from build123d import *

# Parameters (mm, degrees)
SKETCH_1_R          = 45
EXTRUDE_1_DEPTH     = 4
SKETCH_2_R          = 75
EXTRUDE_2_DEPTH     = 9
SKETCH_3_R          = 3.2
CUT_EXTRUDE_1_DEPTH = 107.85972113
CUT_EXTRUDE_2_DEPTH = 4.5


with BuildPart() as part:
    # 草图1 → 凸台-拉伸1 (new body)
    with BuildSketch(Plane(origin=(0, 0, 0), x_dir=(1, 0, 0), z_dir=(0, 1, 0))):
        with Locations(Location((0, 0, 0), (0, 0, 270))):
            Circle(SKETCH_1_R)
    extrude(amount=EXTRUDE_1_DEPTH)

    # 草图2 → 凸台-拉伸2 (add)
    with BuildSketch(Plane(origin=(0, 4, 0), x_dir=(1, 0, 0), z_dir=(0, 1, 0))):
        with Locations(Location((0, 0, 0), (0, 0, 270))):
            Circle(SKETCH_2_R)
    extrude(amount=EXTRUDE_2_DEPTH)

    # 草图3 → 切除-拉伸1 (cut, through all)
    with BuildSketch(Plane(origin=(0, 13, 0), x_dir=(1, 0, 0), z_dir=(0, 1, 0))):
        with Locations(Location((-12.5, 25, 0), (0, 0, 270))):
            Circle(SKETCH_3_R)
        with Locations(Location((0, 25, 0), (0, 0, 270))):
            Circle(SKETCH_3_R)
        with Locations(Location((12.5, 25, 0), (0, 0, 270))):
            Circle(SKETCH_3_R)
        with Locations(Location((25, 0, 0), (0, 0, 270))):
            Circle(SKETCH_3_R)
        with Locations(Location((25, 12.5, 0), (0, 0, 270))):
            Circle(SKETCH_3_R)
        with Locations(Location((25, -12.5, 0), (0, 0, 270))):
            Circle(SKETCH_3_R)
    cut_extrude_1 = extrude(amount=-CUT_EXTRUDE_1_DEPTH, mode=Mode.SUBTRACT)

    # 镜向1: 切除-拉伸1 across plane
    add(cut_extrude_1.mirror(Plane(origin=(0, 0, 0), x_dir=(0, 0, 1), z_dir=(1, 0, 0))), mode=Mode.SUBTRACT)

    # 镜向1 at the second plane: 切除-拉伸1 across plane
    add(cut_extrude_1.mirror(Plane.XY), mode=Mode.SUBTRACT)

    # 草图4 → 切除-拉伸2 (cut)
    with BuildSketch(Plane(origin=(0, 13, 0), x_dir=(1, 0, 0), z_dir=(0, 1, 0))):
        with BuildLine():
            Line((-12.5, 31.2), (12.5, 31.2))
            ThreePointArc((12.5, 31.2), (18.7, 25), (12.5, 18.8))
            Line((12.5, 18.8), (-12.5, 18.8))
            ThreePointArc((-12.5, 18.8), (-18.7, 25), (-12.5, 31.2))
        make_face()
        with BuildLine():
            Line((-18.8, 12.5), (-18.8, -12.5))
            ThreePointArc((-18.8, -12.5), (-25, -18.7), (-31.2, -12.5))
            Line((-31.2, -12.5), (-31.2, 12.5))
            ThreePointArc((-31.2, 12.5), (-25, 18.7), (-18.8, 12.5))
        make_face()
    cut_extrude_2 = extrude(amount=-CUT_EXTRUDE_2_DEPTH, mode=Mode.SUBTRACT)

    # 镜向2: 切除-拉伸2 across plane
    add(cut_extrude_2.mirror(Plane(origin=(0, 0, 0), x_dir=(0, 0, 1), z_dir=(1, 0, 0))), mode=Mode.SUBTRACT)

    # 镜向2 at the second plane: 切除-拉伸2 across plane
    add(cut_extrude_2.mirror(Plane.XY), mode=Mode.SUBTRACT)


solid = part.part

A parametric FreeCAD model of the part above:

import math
import FreeCAD as App
import Part
import Sketcher

V = App.Vector
Q = App.Units.Quantity

doc = App.newDocument("Part")
params = doc.addObject("Spreadsheet::Sheet", "Params")
for row, (alias, value) in enumerate([
    ("sketch1_diameter", "90 mm"),
    ("pad1_length", "4 mm"),
    ("sketch2_diameter", "150 mm"),
    ("pad2_length", "9 mm"),
    ("sketch3_diameter", "6.4 mm"),
    ("sketch4_radius", "6.2 mm"),
    ("sketch4_width", "25 mm"),
    ("pocket2_length", "4.5 mm"),
], start=1):
    params.set(f"A{row}", alias)
    params.set(f"B{row}", "=" + value)
    params.setAlias(f"B{row}", alias)

body = doc.addObject("PartDesign::Body", "Body")

sketch1 = body.newObject("Sketcher::SketchObject", "Sketch")
sketch1.AttachmentSupport = (doc.getObject("XZ_Plane"), [""])
sketch1.MapMode = "FlatFace"
sketch1.addGeometry(Part.Circle(V(0, 0, 0), V(0, 0, 1), 45), False)
sketch1.addConstraint([
    Sketcher.Constraint("Coincident", 0, 3, -1, 1),
    Sketcher.Constraint("Diameter", 0, Q("90 mm")),
])
sketch1.setExpression("Constraints[1]", "Params.sketch1_diameter")
pad1 = body.newObject("PartDesign::Pad", "Pad")
pad1.Profile = sketch1
pad1.setExpression("Length", "Params.pad1_length")
pad1.Reversed = True

sketch2 = body.newObject("Sketcher::SketchObject", "Sketch001")
sketch2.AttachmentSupport = (doc.getObject("XZ_Plane"), [""])
sketch2.MapMode = "FlatFace"
sketch2.AttachmentOffset = App.Placement(V(0, 0, -4), App.Rotation())
sketch2.addGeometry(Part.Circle(V(0, 0, 0), V(0, 0, 1), 75), False)
sketch2.addConstraint([
    Sketcher.Constraint("Coincident", 0, 3, -1, 1),
    Sketcher.Constraint("Diameter", 0, Q("150 mm")),
])
sketch2.setExpression("Constraints[1]", "Params.sketch2_diameter")
pad2 = body.newObject("PartDesign::Pad", "Pad001")
pad2.Profile = sketch2
pad2.setExpression("Length", "Params.pad2_length")
pad2.Reversed = True

sketch3 = body.newObject("Sketcher::SketchObject", "Sketch002")
sketch3.AttachmentSupport = (doc.getObject("XZ_Plane"), [""])
sketch3.MapMode = "FlatFace"
sketch3.AttachmentOffset = App.Placement(V(0, 0, -13), App.Rotation())
sketch3.addGeometry([
    Part.Circle(V(-12.5, -25, 0), V(0, 0, 1), 3.2),
    Part.Circle(V(0, -25, 0), V(0, 0, 1), 3.2),
    Part.Circle(V(12.5, -25, 0), V(0, 0, 1), 3.2),
    Part.Circle(V(25, 0, 0), V(0, 0, 1), 3.2),
    Part.Circle(V(25, -12.5, 0), V(0, 0, 1), 3.2),
    Part.Circle(V(25, 12.5, 0), V(0, 0, 1), 3.2),
], False)
sketch3.addConstraint([
    Sketcher.Constraint("Equal", 0, 1),
    Sketcher.Constraint("Equal", 1, 2),
    Sketcher.Constraint("Equal", 2, 3),
    Sketcher.Constraint("Equal", 3, 4),
    Sketcher.Constraint("Equal", 4, 5),
    Sketcher.Constraint("Symmetric", 0, 3, 2, 3, -2),
    Sketcher.Constraint("Symmetric", 4, 3, 5, 3, -1),
    Sketcher.Constraint("PointOnObject", 1, 3, -2),
    Sketcher.Constraint("PointOnObject", 3, 3, -1),
    Sketcher.Constraint("Horizontal", 0, 3, 1, 3),
    Sketcher.Constraint("Vertical", 3, 3, 4, 3),
    Sketcher.Constraint("Diameter", 0, Q("6.4 mm")),
    Sketcher.Constraint("DistanceY", 0, 3, -1, 1, Q("25 mm")),
    Sketcher.Constraint("DistanceX", -1, 1, 3, 3, Q("25 mm")),
    Sketcher.Constraint("DistanceX", 0, 3, 2, 3, Q("25 mm")),
    Sketcher.Constraint("DistanceY", 4, 3, 5, 3, Q("25 mm")),
])
sketch3.setExpression("Constraints[11]", "Params.sketch3_diameter")
pocket1 = body.newObject("PartDesign::Pocket", "Pocket")
pocket1.Profile = sketch3
pocket1.Type = "ThroughAll"
pocket1.Reversed = True
doc.recompute()

mirrored = body.newObject("PartDesign::Mirrored", "Mirrored")
mirrored.Originals = [pocket1]
mirrored.MirrorPlane = (doc.getObject("YZ_Plane"), [""])
body.Tip = mirrored
doc.recompute()

mirrored2 = body.newObject("PartDesign::Mirrored", "Mirrored001")
mirrored2.Originals = [pocket1]
mirrored2.MirrorPlane = (doc.getObject("XY_Plane"), [""])
body.Tip = mirrored2

sketch4 = body.newObject("Sketcher::SketchObject", "Sketch003")
sketch4.AttachmentSupport = (doc.getObject("XZ_Plane"), [""])
sketch4.MapMode = "FlatFace"
sketch4.AttachmentOffset = App.Placement(V(0, 0, -13), App.Rotation())
sketch4.addGeometry([
    Part.LineSegment(V(12.5, -31.2, 0), V(-12.5, -31.2, 0)),
    Part.ArcOfCircle(Part.Circle(V(-12.5, -25, 0), V(0, 0, 1), 6.2), math.radians(90), math.radians(270)),
    Part.LineSegment(V(-12.5, -18.8, 0), V(12.5, -18.8, 0)),
    Part.ArcOfCircle(Part.Circle(V(12.5, -25, 0), V(0, 0, 1), 6.2), math.radians(-90), math.radians(90)),
    Part.LineSegment(V(-18.8, 12.5, 0), V(-18.8, -12.5, 0)),
    Part.ArcOfCircle(Part.Circle(V(-25, -12.5, 0), V(0, 0, 1), 6.2), math.radians(180), math.radians(360)),
    Part.LineSegment(V(-31.2, -12.5, 0), V(-31.2, 12.5, 0)),
    Part.ArcOfCircle(Part.Circle(V(-25, 12.5, 0), V(0, 0, 1), 6.2), math.radians(0), math.radians(180)),
], False)
sketch4.addConstraint([
    Sketcher.Constraint("Tangent", 0, 2, 1, 2),
    Sketcher.Constraint("Tangent", 1, 1, 2, 1),
    Sketcher.Constraint("Tangent", 2, 2, 3, 2),
    Sketcher.Constraint("Tangent", 3, 1, 0, 1),
    Sketcher.Constraint("Tangent", 4, 2, 5, 2),
    Sketcher.Constraint("Tangent", 5, 1, 6, 1),
    Sketcher.Constraint("Tangent", 6, 2, 7, 2),
    Sketcher.Constraint("Tangent", 7, 1, 4, 1),
    Sketcher.Constraint("Horizontal", 0),
    Sketcher.Constraint("Horizontal", 2),
    Sketcher.Constraint("Vertical", 4),
    Sketcher.Constraint("Vertical", 6),
    Sketcher.Constraint("Equal", 3, 5),
    Sketcher.Constraint("Equal", 2, 4),
    Sketcher.Constraint("Radius", 1, Q("6.2 mm")),
    Sketcher.Constraint("DistanceX", 0, 2, 0, 1, Q("25 mm")),
    Sketcher.Constraint("DistanceY", 1, 3, -1, 1, Q("25 mm")),
    Sketcher.Constraint("DistanceX", 5, 3, -1, 1, Q("25 mm")),
    Sketcher.Constraint("DistanceX", 1, 3, -1, 1, Q("12.5 mm")),
    Sketcher.Constraint("DistanceY", 5, 3, -1, 1, Q("12.5 mm")),
])
sketch4.setExpression("Constraints[14]", "Params.sketch4_radius")
sketch4.setExpression("Constraints[15]", "Params.sketch4_width")
pocket2 = body.newObject("PartDesign::Pocket", "Pocket001")
pocket2.Profile = sketch4
pocket2.setExpression("Length", "Params.pocket2_length")
pocket2.Reversed = True
doc.recompute()

mirrored3 = body.newObject("PartDesign::Mirrored", "Mirrored002")
mirrored3.Originals = [pocket2]
mirrored3.MirrorPlane = (doc.getObject("YZ_Plane"), [""])
body.Tip = mirrored3
doc.recompute()

mirrored4 = body.newObject("PartDesign::Mirrored", "Mirrored003")
mirrored4.Originals = [pocket2]
mirrored4.MirrorPlane = (doc.getObject("XY_Plane"), [""])
body.Tip = mirrored4

doc.recompute()
